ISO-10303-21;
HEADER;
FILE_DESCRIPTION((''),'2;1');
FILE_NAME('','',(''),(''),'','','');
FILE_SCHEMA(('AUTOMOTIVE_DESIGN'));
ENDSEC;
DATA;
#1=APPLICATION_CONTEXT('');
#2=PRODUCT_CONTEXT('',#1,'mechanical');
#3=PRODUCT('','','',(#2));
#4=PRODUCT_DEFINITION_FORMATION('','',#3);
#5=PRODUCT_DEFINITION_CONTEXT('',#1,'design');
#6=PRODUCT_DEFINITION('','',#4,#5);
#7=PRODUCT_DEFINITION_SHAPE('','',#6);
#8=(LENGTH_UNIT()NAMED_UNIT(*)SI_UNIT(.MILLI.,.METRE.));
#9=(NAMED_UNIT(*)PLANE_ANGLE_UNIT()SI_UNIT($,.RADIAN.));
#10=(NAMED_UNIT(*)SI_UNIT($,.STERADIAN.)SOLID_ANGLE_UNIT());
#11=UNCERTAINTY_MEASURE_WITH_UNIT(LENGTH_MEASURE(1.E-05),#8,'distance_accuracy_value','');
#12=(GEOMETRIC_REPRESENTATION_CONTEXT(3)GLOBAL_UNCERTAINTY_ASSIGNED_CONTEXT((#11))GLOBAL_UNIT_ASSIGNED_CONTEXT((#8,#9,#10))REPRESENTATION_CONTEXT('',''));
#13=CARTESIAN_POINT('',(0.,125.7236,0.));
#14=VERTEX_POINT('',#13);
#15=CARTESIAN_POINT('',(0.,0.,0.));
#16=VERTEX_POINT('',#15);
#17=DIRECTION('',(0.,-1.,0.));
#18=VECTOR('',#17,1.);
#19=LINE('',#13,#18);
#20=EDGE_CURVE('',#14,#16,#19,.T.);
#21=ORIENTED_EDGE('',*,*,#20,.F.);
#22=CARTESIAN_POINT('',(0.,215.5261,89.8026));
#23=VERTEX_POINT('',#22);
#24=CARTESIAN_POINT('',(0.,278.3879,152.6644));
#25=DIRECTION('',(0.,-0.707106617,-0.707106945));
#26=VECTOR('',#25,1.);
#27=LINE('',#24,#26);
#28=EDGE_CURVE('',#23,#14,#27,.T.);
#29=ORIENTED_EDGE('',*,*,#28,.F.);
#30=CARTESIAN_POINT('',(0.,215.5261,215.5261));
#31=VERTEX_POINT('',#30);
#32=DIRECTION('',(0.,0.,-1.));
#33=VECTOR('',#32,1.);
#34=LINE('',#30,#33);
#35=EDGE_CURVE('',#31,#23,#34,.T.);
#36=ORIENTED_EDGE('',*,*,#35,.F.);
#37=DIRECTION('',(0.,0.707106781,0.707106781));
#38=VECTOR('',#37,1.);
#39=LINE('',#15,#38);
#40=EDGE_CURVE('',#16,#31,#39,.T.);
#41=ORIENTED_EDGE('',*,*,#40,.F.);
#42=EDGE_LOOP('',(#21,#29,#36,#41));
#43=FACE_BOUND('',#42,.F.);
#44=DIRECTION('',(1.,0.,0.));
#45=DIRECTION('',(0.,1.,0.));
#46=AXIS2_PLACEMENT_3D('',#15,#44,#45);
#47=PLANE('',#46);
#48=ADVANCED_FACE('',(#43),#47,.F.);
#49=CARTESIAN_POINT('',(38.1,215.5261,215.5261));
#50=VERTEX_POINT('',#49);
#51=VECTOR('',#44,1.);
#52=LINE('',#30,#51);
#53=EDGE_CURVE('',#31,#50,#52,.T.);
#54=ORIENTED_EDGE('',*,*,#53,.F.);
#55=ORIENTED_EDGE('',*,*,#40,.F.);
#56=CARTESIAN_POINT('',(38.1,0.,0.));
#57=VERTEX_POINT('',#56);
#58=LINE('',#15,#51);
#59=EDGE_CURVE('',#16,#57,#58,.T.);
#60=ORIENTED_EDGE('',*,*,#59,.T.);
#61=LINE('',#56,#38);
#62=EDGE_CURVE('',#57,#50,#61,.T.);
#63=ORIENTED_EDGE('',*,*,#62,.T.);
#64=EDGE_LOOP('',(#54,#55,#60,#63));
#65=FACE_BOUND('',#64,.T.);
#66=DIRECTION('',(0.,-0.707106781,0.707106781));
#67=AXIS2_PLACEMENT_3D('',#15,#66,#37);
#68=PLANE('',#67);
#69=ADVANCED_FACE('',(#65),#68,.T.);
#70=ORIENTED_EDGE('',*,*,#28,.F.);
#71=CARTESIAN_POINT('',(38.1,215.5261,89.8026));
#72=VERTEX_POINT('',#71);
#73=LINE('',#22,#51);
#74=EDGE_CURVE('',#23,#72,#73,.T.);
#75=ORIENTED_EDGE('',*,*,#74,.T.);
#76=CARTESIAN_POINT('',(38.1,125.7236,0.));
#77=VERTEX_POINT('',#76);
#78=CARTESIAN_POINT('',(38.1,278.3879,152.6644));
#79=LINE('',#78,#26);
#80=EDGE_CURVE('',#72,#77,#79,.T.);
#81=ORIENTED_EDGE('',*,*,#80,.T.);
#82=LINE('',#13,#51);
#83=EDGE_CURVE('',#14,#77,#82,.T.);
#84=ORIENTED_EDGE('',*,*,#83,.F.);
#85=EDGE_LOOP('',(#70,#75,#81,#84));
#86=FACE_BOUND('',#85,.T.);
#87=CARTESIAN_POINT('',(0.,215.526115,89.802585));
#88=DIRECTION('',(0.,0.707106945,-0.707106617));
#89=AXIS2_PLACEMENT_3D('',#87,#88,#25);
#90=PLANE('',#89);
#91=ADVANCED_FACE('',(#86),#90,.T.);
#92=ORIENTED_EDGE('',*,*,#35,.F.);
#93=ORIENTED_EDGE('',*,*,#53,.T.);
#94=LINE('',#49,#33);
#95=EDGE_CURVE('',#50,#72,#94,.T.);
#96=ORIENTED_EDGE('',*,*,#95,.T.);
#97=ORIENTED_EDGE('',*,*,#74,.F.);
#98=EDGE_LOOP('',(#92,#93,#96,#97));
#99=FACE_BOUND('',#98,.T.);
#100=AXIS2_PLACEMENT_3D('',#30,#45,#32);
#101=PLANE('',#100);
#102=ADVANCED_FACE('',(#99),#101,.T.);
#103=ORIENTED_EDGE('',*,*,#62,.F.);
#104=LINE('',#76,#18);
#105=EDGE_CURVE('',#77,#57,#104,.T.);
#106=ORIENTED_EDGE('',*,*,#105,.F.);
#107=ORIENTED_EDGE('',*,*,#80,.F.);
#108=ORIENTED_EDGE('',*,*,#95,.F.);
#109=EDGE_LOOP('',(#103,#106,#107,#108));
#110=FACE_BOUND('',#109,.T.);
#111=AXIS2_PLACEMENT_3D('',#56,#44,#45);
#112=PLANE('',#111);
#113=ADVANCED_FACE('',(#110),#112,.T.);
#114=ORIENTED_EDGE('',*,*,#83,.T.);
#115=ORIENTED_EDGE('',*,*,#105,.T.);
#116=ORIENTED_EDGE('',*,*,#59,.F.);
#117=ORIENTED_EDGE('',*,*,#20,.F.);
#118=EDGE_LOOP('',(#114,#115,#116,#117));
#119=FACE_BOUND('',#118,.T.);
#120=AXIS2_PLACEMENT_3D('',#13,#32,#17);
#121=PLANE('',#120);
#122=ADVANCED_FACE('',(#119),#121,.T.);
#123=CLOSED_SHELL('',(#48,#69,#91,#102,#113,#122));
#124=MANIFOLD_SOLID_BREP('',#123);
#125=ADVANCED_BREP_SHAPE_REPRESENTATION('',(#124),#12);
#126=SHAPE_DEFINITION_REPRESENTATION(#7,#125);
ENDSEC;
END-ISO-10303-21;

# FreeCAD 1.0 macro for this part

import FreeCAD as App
import Part
import Sketcher
from FreeCAD import Vector
Q = App.Units.Quantity

doc = App.newDocument("Part")
body = doc.addObject("PartDesign::Body", "Body")

# Sketch on YZ plane
sketch1 = doc.addObject("Sketcher::SketchObject", "Sketch")
body.addObject(sketch1)
sketch1.AttachmentSupport = (doc.YZ_Plane, [""])
sketch1.MapMode = "FlatFace"
sketch1.addGeometry([
    Part.LineSegment(Vector(216, 216, 0), Vector(0, 0, 0)),
    Part.LineSegment(Vector(0, 0, 0), Vector(126, 0, 0)),
    Part.LineSegment(Vector(126, 0, 0), Vector(216, 90, 0)),
    Part.LineSegment(Vector(216, 90, 0), Vector(216, 216, 0)),
], False)
sketch1.addConstraint([
    Sketcher.Constraint("Coincident", 0, 2, 1, 1),
    Sketcher.Constraint("Coincident", 1, 2, 2, 1),
    Sketcher.Constraint("Coincident", 2, 2, 3, 1),
    Sketcher.Constraint("Coincident", 3, 2, 0, 1),
    Sketcher.Constraint("Horizontal", 1),
    Sketcher.Constraint("Vertical", 3),
    Sketcher.Constraint("Coincident", 0, 2, -1, 1),
    Sketcher.Constraint("Parallel", 0, 2),
    Sketcher.Constraint("Equal", 1, 3),
    Sketcher.Constraint("Distance", 0, Q("12 in")),
    Sketcher.Constraint("Distance", 2, Q("5 in")),
])
pad1 = doc.addObject("PartDesign::Pad", "Pad")
body.addObject(pad1)
pad1.Profile = sketch1
pad1.Length = Q("1.5 in")

doc.recompute()
